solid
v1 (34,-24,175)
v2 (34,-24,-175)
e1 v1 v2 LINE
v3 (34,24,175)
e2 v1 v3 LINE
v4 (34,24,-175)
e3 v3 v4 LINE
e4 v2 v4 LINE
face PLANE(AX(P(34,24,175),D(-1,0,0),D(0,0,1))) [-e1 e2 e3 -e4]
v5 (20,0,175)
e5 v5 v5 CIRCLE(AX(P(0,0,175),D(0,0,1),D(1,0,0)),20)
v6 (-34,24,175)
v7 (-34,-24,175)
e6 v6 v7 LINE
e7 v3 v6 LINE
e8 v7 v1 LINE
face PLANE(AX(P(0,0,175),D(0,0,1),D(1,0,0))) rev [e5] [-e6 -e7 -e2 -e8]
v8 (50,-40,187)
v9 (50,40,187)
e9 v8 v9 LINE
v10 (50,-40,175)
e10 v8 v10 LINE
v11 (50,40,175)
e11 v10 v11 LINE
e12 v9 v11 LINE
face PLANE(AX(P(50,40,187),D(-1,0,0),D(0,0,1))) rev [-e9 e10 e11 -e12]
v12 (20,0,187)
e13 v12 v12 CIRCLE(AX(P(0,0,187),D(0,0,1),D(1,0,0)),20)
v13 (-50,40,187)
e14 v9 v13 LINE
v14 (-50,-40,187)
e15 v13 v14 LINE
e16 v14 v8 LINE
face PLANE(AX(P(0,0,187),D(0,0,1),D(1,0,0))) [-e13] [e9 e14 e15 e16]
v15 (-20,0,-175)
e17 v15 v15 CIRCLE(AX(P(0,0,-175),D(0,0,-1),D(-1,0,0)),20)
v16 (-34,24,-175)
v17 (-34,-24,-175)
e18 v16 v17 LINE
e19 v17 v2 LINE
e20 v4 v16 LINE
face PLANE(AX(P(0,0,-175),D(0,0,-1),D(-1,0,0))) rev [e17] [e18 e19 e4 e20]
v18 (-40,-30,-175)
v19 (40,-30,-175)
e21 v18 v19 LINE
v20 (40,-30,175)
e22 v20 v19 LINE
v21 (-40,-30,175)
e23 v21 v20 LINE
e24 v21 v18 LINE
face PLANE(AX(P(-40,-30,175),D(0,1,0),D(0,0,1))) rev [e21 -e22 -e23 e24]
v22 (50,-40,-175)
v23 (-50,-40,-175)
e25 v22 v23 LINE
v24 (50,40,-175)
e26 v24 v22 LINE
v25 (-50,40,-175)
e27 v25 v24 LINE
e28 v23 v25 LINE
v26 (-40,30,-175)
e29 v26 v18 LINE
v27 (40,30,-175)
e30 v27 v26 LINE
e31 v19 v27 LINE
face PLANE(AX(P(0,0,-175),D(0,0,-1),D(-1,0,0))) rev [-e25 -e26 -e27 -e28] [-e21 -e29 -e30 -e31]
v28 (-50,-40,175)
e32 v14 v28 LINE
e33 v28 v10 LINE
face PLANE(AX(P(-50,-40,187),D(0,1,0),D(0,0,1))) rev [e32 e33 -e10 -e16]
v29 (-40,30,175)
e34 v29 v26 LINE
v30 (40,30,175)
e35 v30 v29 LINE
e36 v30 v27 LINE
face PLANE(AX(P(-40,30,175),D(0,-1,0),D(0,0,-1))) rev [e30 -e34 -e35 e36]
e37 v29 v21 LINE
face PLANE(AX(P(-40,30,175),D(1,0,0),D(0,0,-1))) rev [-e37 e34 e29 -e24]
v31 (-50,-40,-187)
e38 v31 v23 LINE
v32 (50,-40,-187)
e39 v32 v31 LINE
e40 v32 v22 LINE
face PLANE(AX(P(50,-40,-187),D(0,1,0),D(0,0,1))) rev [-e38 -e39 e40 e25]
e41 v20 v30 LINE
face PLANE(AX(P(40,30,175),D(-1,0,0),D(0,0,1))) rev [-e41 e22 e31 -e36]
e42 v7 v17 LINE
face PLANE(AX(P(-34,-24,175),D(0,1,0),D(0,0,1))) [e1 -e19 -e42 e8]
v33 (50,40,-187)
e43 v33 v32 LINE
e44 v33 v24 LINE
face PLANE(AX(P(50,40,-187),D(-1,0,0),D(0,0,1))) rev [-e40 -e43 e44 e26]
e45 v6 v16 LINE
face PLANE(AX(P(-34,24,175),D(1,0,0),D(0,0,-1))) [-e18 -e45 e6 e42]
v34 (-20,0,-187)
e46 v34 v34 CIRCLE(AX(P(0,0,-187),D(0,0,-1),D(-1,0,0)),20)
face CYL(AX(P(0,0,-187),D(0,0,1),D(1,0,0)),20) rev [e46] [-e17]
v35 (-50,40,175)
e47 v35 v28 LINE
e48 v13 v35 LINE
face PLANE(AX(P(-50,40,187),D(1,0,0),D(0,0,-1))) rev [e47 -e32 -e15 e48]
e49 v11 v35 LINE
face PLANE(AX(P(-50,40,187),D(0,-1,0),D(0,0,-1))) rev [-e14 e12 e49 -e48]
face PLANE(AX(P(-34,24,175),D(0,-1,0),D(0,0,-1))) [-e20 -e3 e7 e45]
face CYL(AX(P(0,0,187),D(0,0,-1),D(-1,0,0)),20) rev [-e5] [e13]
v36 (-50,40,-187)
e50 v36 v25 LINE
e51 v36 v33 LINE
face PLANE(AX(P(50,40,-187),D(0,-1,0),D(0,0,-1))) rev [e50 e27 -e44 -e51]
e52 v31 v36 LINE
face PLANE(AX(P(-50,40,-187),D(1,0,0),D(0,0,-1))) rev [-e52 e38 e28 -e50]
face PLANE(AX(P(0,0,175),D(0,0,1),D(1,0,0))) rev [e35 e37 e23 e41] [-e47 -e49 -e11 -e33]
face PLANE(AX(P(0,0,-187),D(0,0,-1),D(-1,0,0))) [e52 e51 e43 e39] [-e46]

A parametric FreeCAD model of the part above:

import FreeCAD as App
import Part
import Sketcher
from FreeCAD import Vector

doc = App.newDocument("Part")
body = doc.addObject("PartDesign::Body", "Body")

sketch1 = doc.addObject("Sketcher::SketchObject", "Sketch")
body.addObject(sketch1)
sketch1.AttachmentSupport = (doc.XY_Plane, [""])
sketch1.MapMode = "FlatFace"
sketch1.addGeometry(Part.LineSegment(Vector(-40, 30, 0), Vector(-40, -30, 0)), False)
sketch1.addGeometry(Part.LineSegment(Vector(-40, -30, 0), Vector(40, -30, 0)), False)
sketch1.addGeometry(Part.LineSegment(Vector(40, -30, 0), Vector(40, 30, 0)), False)
sketch1.addGeometry(Part.LineSegment(Vector(40, 30, 0), Vector(-40, 30, 0)), False)
sketch1.addGeometry(Part.LineSegment(Vector(34, -24, 0), Vector(-34, -24, 0)), False)
sketch1.addGeometry(Part.LineSegment(Vector(-34, -24, 0), Vector(-34, 24, 0)), False)
sketch1.addGeometry(Part.LineSegment(Vector(-34, 24, 0), Vector(34, 24, 0)), False)
sketch1.addGeometry(Part.LineSegment(Vector(34, 24, 0), Vector(34, -24, 0)), False)
sketch1.addConstraint(Sketcher.Constraint("Coincident", 0, 2, 1, 1))
sketch1.addConstraint(Sketcher.Constraint("Coincident", 1, 2, 2, 1))
sketch1.addConstraint(Sketcher.Constraint("Coincident", 2, 2, 3, 1))
sketch1.addConstraint(Sketcher.Constraint("Coincident", 3, 2, 0, 1))
sketch1.addConstraint(Sketcher.Constraint("Coincident", 4, 2, 5, 1))
sketch1.addConstraint(Sketcher.Constraint("Coincident", 5, 2, 6, 1))
sketch1.addConstraint(Sketcher.Constraint("Coincident", 6, 2, 7, 1))
sketch1.addConstraint(Sketcher.Constraint("Coincident", 7, 2, 4, 1))
sketch1.addConstraint(Sketcher.Constraint("Vertical", 0))
sketch1.addConstraint(Sketcher.Constraint("Horizontal", 1))
sketch1.addConstraint(Sketcher.Constraint("Vertical", 2))
sketch1.addConstraint(Sketcher.Constraint("Horizontal", 3))
sketch1.addConstraint(Sketcher.Constraint("Horizontal", 4))
sketch1.addConstraint(Sketcher.Constraint("Vertical", 5))
sketch1.addConstraint(Sketcher.Constraint("Horizontal", 6))
sketch1.addConstraint(Sketcher.Constraint("Vertical", 7))
sketch1.addConstraint(Sketcher.Constraint("Symmetric", 0, 2, 2, 2, -1, 1))
sketch1.addConstraint(Sketcher.Constraint("Symmetric", 4, 2, 6, 2, -1, 1))
sketch1.addConstraint(Sketcher.Constraint("DistanceX", 1, 1, 1, 2, 80.0))
sketch1.addConstraint(Sketcher.Constraint("DistanceX", 4, 2, 4, 1, 68.0))
sketch1.addConstraint(Sketcher.Constraint("DistanceY", 0, 2, 0, 1, 60.0))
sketch1.addConstraint(Sketcher.Constraint("DistanceY", 5, 1, 5, 2, 48.0))
pad1 = doc.addObject("PartDesign::Pad", "Pad")
body.addObject(pad1)
pad1.Profile = sketch1
pad1.Length = 350
pad1.Midplane = True

sketch2 = doc.addObject("Sketcher::SketchObject", "Sketch001")
body.addObject(sketch2)
sketch2.AttachmentSupport = (doc.XY_Plane, [""])
sketch2.MapMode = "FlatFace"
sketch2.AttachmentOffset = App.Placement(Vector(0, 0, 175), App.Rotation())
sketch2.addGeometry(Part.LineSegment(Vector(-50, 40, 0), Vector(-50, -40, 0)), False)
sketch2.addGeometry(Part.LineSegment(Vector(-50, -40, 0), Vector(50, -40, 0)), False)
sketch2.addGeometry(Part.LineSegment(Vector(50, -40, 0), Vector(50, 40, 0)), False)
sketch2.addGeometry(Part.LineSegment(Vector(50, 40, 0), Vector(-50, 40, 0)), False)
sketch2.addGeometry(Part.Circle(Vector(0, 0, 0), Vector(0, 0, 1), 20), False)
sketch2.addConstraint(Sketcher.Constraint("Coincident", 0, 2, 1, 1))
sketch2.addConstraint(Sketcher.Constraint("Coincident", 1, 2, 2, 1))
sketch2.addConstraint(Sketcher.Constraint("Coincident", 2, 2, 3, 1))
sketch2.addConstraint(Sketcher.Constraint("Coincident", 3, 2, 0, 1))
sketch2.addConstraint(Sketcher.Constraint("Vertical", 0))
sketch2.addConstraint(Sketcher.Constraint("Horizontal", 1))
sketch2.addConstraint(Sketcher.Constraint("Vertical", 2))
sketch2.addConstraint(Sketcher.Constraint("Horizontal", 3))
sketch2.addConstraint(Sketcher.Constraint("Coincident", 4, 3, -1, 1))
sketch2.addConstraint(Sketcher.Constraint("Symmetric", 0, 2, 2, 2, -1, 1))
sketch2.addConstraint(Sketcher.Constraint("Diameter", 4, 40.0))
sketch2.addConstraint(Sketcher.Constraint("DistanceX", 1, 1, 1, 2, 100.0))
sketch2.addConstraint(Sketcher.Constraint("DistanceY", 0, 2, 0, 1, 80.0))
pad2 = doc.addObject("PartDesign::Pad", "Pad001")
body.addObject(pad2)
pad2.Profile = sketch2
pad2.Length = 12

sketch3 = doc.addObject("Sketcher::SketchObject", "Sketch002")
body.addObject(sketch3)
sketch3.AttachmentSupport = (doc.XY_Plane, [""])
sketch3.MapMode = "FlatFace"
sketch3.AttachmentOffset = App.Placement(Vector(0, 0, -187), App.Rotation())
sketch3.addGeometry(Part.LineSegment(Vector(50, 40, 0), Vector(50, -40, 0)), False)
sketch3.addGeometry(Part.LineSegment(Vector(50, -40, 0), Vector(-50, -40, 0)), False)
sketch3.addGeometry(Part.LineSegment(Vector(-50, -40, 0), Vector(-50, 40, 0)), False)
sketch3.addGeometry(Part.LineSegment(Vector(-50, 40, 0), Vector(50, 40, 0)), False)
sketch3.addGeometry(Part.Circle(Vector(0, 0, 0), Vector(0, 0, 1), 20), False)
sketch3.addConstraint(Sketcher.Constraint("Coincident", 0, 2, 1, 1))
sketch3.addConstraint(Sketcher.Constraint("Coincident", 1, 2, 2, 1))
sketch3.addConstraint(Sketcher.Constraint("Coincident", 2, 2, 3, 1))
sketch3.addConstraint(Sketcher.Constraint("Coincident", 3, 2, 0, 1))
sketch3.addConstraint(Sketcher.Constraint("Vertical", 0))
sketch3.addConstraint(Sketcher.Constraint("Horizontal", 1))
sketch3.addConstraint(Sketcher.Constraint("Vertical", 2))
sketch3.addConstraint(Sketcher.Constraint("Horizontal", 3))
sketch3.addConstraint(Sketcher.Constraint("Coincident", 4, 3, -1, 1))
sketch3.addConstraint(Sketcher.Constraint("Symmetric", 0, 2, 2, 2, -1, 1))
sketch3.addConstraint(Sketcher.Constraint("Diameter", 4, 40.0))
sketch3.addConstraint(Sketcher.Constraint("DistanceX", 1, 2, 1, 1, 100.0))
sketch3.addConstraint(Sketcher.Constraint("DistanceY", 0, 2, 0, 1, 80.0))
pad3 = doc.addObject("PartDesign::Pad", "Pad002")
body.addObject(pad3)
pad3.Profile = sketch3
pad3.Length = 12

doc.recompute()
